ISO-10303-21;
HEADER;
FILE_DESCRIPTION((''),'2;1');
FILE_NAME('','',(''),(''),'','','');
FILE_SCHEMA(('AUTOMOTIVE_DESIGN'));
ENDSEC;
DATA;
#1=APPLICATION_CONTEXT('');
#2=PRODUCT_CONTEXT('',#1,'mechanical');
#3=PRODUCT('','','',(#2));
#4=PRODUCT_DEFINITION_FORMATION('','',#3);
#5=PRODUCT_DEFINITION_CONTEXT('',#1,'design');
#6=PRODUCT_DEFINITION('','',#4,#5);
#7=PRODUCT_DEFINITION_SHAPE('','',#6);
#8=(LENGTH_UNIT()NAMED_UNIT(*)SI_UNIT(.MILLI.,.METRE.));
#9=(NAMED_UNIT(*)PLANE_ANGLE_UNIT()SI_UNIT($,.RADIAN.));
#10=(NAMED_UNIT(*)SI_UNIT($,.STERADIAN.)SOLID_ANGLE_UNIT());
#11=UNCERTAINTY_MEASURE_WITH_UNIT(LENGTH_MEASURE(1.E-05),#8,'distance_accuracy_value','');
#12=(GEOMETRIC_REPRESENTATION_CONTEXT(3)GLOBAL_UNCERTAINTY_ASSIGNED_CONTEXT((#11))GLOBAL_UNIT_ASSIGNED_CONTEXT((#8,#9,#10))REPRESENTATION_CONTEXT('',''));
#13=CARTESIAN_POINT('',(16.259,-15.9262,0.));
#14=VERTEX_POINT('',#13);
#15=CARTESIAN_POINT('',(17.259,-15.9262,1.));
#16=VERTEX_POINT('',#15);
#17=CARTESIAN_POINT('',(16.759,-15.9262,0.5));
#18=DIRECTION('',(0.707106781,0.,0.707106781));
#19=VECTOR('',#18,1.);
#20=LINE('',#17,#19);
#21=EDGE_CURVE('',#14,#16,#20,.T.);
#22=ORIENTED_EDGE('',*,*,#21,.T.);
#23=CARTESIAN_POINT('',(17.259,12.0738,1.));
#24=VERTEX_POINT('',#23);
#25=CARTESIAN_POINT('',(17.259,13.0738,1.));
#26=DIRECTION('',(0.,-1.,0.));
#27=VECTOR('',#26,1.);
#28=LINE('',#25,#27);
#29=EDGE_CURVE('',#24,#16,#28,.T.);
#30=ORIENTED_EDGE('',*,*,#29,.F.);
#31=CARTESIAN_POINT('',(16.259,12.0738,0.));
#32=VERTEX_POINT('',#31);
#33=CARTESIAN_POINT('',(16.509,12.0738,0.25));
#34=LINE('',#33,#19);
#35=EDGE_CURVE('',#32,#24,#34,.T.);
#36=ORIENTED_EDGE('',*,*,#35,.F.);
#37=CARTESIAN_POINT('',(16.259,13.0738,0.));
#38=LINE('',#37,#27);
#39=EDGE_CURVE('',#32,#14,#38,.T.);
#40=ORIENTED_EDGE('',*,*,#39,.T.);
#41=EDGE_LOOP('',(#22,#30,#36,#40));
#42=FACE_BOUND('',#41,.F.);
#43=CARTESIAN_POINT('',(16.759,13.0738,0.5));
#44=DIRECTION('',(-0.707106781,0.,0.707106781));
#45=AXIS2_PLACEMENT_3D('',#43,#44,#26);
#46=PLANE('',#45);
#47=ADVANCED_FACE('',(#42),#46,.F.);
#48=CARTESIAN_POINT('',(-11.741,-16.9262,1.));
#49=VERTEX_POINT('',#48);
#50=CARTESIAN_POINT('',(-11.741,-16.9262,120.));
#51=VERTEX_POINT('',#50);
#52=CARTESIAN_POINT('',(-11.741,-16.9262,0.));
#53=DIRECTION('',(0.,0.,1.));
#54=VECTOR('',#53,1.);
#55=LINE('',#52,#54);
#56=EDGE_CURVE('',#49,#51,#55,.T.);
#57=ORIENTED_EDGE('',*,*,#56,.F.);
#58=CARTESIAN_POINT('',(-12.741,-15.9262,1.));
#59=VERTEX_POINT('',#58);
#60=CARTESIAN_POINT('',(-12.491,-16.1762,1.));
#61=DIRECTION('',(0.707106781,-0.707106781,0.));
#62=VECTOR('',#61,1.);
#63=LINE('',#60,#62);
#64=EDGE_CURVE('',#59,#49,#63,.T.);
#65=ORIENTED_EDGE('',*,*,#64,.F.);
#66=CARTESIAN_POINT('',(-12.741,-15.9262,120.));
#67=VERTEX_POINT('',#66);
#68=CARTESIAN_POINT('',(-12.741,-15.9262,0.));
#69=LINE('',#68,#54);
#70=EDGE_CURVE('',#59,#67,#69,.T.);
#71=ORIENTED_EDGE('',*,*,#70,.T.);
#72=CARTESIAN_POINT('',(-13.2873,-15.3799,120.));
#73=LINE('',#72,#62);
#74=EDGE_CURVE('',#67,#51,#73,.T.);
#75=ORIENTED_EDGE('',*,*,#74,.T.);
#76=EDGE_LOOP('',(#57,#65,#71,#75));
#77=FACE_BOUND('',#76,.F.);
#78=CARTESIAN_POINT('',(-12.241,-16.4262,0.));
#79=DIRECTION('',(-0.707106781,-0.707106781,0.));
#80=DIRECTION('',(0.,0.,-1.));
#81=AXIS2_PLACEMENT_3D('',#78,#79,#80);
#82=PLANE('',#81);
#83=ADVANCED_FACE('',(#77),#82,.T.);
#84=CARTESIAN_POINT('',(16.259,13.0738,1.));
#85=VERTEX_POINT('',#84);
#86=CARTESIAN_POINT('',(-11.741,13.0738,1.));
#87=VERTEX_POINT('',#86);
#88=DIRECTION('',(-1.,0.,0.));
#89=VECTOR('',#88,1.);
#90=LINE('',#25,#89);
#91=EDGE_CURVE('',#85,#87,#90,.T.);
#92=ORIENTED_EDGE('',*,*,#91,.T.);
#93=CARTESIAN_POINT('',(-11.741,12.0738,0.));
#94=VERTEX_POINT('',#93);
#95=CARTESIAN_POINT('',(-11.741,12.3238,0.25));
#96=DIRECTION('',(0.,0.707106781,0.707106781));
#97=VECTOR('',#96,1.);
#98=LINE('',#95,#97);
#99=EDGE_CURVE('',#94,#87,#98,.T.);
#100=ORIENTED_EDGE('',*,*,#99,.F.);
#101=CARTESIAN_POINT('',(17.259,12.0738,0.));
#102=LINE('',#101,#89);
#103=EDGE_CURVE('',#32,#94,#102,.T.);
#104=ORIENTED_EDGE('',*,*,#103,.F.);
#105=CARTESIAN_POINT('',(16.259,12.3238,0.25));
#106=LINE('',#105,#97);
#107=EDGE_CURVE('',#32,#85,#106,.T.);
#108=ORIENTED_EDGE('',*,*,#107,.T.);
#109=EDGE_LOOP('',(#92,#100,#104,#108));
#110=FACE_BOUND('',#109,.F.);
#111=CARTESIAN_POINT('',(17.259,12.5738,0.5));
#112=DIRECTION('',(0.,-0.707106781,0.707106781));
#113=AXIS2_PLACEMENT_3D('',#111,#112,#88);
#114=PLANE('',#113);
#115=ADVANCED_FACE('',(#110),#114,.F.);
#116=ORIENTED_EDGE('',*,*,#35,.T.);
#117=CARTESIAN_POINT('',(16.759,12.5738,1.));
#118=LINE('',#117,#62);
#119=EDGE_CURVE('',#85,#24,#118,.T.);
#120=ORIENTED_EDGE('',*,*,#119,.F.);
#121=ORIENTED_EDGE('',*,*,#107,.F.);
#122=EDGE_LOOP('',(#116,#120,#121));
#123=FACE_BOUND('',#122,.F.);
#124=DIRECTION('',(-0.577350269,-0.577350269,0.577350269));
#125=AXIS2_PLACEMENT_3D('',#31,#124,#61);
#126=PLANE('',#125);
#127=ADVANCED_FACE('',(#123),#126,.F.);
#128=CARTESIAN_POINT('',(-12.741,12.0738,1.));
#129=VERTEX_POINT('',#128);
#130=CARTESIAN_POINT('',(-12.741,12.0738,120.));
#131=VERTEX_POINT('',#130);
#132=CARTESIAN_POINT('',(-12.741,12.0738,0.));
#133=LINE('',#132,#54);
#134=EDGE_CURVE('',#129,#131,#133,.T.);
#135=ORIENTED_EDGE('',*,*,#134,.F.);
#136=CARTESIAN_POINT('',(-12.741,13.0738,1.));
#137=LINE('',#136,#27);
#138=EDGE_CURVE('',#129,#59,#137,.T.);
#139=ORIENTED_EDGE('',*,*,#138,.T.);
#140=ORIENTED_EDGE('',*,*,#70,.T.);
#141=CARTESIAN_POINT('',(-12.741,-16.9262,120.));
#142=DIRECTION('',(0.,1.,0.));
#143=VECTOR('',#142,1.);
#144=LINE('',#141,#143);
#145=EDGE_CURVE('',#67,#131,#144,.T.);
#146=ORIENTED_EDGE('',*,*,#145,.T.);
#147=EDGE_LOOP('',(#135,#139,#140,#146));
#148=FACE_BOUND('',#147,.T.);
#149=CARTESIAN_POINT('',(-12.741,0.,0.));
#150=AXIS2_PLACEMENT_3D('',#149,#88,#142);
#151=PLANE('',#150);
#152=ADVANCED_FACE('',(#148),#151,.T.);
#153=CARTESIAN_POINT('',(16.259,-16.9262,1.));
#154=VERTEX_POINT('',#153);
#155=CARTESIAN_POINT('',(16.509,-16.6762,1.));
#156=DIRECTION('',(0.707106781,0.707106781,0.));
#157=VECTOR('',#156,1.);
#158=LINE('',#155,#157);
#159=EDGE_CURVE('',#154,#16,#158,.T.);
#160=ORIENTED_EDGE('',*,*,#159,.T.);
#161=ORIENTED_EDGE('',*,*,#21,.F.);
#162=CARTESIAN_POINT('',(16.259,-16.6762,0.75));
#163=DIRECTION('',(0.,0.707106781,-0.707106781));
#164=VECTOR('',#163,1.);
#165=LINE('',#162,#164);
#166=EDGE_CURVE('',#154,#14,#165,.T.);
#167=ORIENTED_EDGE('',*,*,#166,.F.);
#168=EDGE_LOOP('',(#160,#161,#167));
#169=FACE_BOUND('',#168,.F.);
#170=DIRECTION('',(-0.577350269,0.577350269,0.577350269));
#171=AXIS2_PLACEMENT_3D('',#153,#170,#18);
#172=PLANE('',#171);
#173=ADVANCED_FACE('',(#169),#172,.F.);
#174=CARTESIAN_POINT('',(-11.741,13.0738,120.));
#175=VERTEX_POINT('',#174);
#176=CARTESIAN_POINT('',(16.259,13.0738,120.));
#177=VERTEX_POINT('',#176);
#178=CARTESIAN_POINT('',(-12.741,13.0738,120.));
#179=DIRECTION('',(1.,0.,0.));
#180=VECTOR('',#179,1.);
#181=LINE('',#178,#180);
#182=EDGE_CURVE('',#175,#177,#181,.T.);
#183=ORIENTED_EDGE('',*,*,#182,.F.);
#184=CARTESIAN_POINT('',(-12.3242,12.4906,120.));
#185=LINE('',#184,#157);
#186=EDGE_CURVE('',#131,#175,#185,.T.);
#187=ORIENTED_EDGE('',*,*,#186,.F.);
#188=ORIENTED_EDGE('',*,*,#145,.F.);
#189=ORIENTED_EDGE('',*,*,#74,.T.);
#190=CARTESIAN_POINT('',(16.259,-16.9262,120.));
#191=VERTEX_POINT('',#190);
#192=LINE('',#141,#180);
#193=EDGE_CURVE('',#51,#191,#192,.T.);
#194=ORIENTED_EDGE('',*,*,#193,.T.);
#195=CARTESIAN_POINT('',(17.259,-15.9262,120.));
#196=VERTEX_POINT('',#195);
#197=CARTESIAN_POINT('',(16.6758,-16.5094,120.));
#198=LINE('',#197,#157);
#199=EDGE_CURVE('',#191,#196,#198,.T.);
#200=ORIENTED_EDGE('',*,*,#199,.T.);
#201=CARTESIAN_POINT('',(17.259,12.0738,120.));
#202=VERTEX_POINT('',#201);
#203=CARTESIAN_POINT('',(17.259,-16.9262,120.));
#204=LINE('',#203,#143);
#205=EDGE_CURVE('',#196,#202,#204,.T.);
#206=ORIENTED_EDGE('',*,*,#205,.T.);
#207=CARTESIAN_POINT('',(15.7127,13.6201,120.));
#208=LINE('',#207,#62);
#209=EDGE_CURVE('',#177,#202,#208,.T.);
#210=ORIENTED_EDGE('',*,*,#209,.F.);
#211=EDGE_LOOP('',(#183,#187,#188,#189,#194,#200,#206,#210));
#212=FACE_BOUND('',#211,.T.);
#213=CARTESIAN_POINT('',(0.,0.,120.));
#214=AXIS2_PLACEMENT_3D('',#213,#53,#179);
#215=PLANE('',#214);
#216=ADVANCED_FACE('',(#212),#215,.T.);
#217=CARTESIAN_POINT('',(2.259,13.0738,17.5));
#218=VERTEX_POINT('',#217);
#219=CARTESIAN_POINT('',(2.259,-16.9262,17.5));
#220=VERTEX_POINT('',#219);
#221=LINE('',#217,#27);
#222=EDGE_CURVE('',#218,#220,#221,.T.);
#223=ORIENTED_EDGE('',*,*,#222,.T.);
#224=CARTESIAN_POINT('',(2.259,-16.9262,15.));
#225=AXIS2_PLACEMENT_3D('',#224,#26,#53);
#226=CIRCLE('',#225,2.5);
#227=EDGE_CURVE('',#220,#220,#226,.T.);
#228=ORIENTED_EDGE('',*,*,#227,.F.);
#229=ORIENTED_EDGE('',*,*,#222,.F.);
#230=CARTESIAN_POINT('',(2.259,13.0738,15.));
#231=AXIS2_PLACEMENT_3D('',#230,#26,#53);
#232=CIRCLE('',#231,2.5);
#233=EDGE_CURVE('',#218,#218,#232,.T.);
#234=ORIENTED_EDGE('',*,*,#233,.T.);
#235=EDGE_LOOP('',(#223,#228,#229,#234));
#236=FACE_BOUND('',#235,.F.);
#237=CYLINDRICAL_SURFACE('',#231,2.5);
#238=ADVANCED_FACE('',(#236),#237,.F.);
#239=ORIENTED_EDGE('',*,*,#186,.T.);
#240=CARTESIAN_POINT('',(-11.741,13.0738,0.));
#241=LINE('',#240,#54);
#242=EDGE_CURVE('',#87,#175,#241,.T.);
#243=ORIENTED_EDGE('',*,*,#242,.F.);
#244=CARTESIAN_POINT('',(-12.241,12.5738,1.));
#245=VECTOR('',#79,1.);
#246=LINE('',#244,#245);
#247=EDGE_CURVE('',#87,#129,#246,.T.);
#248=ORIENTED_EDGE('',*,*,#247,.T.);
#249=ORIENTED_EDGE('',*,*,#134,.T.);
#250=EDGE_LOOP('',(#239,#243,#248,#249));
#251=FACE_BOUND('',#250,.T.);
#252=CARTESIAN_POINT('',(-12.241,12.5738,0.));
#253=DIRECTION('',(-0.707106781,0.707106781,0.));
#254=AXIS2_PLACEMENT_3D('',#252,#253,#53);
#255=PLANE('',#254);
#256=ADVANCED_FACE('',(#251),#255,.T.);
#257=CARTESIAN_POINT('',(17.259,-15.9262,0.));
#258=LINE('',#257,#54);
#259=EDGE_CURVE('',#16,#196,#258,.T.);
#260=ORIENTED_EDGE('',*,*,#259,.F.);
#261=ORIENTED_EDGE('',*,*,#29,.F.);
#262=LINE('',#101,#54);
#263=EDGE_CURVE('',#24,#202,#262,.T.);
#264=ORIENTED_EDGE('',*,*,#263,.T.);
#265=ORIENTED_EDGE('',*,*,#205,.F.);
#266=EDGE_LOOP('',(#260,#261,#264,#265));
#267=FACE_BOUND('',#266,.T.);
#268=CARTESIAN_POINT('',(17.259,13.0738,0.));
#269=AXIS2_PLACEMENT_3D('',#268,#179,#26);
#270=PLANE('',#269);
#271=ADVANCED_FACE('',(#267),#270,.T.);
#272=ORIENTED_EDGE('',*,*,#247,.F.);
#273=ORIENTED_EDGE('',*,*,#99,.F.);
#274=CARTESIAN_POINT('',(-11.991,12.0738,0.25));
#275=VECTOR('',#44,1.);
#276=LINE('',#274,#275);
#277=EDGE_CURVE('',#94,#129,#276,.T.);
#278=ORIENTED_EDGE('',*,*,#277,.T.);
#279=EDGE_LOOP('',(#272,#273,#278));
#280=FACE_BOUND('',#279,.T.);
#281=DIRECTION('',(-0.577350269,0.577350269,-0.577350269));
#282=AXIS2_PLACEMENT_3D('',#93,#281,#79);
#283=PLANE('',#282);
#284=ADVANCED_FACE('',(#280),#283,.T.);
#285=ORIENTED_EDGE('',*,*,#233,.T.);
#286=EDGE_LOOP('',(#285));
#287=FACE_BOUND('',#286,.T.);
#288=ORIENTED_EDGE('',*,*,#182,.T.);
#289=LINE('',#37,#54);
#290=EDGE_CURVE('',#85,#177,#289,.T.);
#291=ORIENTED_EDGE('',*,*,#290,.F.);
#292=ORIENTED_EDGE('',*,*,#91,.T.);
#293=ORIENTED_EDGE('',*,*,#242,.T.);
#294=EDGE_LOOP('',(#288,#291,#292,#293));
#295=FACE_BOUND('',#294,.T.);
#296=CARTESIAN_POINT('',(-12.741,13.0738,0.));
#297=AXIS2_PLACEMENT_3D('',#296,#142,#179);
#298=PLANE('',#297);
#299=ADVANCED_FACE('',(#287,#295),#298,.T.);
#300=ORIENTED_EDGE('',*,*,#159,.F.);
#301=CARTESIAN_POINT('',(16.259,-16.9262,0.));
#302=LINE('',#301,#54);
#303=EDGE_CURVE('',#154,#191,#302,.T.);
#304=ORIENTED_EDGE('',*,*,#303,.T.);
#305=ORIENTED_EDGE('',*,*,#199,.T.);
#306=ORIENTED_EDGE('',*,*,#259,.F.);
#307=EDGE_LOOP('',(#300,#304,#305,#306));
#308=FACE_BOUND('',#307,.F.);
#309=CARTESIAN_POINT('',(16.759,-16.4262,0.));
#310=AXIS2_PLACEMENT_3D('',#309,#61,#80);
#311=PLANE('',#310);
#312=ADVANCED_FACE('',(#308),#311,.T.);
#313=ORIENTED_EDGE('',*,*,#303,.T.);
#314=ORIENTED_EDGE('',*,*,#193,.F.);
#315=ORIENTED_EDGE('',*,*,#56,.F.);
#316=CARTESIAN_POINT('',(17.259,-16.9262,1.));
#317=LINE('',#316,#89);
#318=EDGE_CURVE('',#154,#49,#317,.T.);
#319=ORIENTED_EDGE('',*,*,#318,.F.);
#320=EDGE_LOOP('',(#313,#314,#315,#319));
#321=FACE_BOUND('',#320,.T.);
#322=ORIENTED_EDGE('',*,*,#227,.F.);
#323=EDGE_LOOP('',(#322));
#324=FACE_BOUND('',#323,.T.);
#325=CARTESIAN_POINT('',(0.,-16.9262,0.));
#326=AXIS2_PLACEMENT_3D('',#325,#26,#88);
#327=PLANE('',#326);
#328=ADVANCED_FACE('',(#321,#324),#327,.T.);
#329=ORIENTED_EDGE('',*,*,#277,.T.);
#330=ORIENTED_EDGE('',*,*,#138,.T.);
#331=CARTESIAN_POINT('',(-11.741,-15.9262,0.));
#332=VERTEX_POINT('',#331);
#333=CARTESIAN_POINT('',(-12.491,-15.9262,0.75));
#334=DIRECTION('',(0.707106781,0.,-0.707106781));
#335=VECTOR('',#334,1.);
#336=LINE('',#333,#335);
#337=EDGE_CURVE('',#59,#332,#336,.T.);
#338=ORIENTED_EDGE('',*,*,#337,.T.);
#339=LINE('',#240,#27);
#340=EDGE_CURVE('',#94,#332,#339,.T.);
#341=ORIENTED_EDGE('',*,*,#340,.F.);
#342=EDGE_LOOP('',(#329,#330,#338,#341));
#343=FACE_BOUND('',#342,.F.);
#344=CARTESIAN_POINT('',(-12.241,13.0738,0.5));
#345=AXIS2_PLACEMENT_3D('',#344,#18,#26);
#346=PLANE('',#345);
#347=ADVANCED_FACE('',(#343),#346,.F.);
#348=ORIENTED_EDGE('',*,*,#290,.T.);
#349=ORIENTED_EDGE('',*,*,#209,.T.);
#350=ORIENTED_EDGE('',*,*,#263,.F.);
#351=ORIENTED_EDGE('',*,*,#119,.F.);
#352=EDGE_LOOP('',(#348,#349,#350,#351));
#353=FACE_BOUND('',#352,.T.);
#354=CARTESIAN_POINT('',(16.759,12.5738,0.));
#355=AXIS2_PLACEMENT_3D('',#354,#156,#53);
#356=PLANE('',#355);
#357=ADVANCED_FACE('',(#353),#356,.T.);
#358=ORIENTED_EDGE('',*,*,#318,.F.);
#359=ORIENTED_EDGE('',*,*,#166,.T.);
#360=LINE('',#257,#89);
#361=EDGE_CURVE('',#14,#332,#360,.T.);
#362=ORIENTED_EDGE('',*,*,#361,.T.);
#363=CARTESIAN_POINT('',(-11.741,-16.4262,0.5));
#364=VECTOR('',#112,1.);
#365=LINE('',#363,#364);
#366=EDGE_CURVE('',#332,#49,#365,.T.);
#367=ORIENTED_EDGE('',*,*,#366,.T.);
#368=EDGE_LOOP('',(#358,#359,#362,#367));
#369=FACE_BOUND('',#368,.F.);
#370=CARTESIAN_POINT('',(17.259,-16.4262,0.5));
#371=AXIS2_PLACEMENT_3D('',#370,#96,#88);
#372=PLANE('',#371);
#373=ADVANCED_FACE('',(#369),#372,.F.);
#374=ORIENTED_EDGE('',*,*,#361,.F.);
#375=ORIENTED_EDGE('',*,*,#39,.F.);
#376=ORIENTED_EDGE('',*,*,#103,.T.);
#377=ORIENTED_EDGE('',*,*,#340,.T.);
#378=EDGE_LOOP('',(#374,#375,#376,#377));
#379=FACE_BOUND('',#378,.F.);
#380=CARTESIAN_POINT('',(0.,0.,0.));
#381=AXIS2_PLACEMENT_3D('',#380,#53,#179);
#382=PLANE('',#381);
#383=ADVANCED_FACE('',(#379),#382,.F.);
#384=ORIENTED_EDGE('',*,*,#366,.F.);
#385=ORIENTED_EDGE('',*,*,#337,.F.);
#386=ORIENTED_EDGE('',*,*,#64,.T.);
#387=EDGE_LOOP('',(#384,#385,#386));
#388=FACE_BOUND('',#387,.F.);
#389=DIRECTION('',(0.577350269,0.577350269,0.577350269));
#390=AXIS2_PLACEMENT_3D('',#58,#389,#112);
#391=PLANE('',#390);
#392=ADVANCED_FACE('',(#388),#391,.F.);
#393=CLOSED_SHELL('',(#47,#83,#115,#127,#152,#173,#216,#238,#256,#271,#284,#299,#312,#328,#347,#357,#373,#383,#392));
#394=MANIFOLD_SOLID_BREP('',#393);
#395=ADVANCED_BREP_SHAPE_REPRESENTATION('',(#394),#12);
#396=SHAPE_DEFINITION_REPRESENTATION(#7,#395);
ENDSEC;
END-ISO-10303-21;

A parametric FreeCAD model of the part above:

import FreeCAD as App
import Part
import Sketcher

V = App.Vector


def edges_at(feature, points):
    """Names of the edges that pass closest to the given points."""
    edges = feature.Shape.Edges
    near = lambda p: min(range(len(edges)), key=lambda i: edges[i].distToShape(Part.Vertex(*p))[0])
    return sorted({f"Edge{near(p) + 1}" for p in points})

doc = App.newDocument("Part")
body = doc.addObject("PartDesign::Body", "Body")

sketch1 = doc.addObject("Sketcher::SketchObject", "Sketch")
body.addObject(sketch1)
sketch1.AttachmentSupport = (doc.XY_Plane, [""])
sketch1.MapMode = "FlatFace"
sketch1.addGeometry([
    Part.LineSegment(V(-12.741, 13.0738, 0), V(-12.741, -16.9262, 0)),
    Part.LineSegment(V(-12.741, -16.9262, 0), V(17.259, -16.9262, 0)),
    Part.LineSegment(V(17.259, -16.9262, 0), V(17.259, 13.0738, 0)),
    Part.LineSegment(V(17.259, 13.0738, 0), V(-12.741, 13.0738, 0)),
], False)
sketch1.addConstraint([
    Sketcher.Constraint("Coincident", 0, 2, 1, 1),
    Sketcher.Constraint("Coincident", 1, 2, 2, 1),
    Sketcher.Constraint("Coincident", 2, 2, 3, 1),
    Sketcher.Constraint("Coincident", 3, 2, 0, 1),
    Sketcher.Constraint("Vertical", 0),
    Sketcher.Constraint("Horizontal", 1),
    Sketcher.Constraint("Vertical", 2),
    Sketcher.Constraint("Horizontal", 3),
    Sketcher.Constraint("Equal", 3, 0),
    Sketcher.Constraint("DistanceX", 1, 1, 1, 2, 30.0),
    Sketcher.Constraint("DistanceX", 0, 2, -1, 1, 12.741),
    Sketcher.Constraint("DistanceY", 0, 2, -1, 1, 16.9262),
])
pad1 = doc.addObject("PartDesign::Pad", "Pad")
body.addObject(pad1)
pad1.Profile = sketch1
pad1.Length = 120

sketch2 = doc.addObject("Sketcher::SketchObject", "Sketch001")
body.addObject(sketch2)
sketch2.AttachmentSupport = (doc.XZ_Plane, [""])
sketch2.MapMode = "FlatFace"
sketch2.AttachmentOffset = App.Placement(V(0, 0, -13.0738), App.Rotation())
sketch2.addGeometry(Part.Circle(V(2.259, 15, 0), V(0, 0, 1), 2.5), False)
sketch2.addConstraint([
    Sketcher.Constraint("Diameter", 0, 5.0),
    Sketcher.Constraint("DistanceY", -1, 1, 0, 3, 15.0),
    Sketcher.Constraint("DistanceX", -1, 1, 0, 3, 2.259),
])
doc.recompute()
hole = doc.addObject("PartDesign::Hole", "Hole")
body.addObject(hole)
hole.Profile = sketch2
hole.ThreadType = "None"
hole.Diameter = 5
hole.DepthType = "ThroughAll"
hole.Reversed = True
doc.recompute()

chamfer = doc.addObject("PartDesign::Chamfer", "Chamfer")
body.addObject(chamfer)
chamfer.Base = (hole, edges_at(hole, [
    (17.259, 13.074, 60),
    (-12.741, 13.074, 60),
    (2.259, 13.074, 0),
    (17.259, -1.926, 0),
    (2.259, -16.926, 0),
    (-12.741, -1.926, 0),
    (17.259, -16.926, 60),
    (-12.741, -16.926, 60),
]))
chamfer.Size = 1

doc.recompute()
